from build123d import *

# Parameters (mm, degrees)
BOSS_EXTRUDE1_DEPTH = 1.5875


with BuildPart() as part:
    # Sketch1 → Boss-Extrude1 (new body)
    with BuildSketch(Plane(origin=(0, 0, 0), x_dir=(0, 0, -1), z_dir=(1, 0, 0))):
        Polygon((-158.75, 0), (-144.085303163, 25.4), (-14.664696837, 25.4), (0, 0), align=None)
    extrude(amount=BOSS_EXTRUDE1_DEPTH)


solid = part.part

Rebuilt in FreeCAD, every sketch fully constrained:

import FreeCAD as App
import Part
import Sketcher
Q = App.Units.Quantity

doc = App.newDocument("Part")
body = doc.addObject("PartDesign::Body", "Body")

# Sketch on YZ plane
sketch1 = body.newObject("Sketcher::SketchObject", "Sketch")
sketch1.AttachmentSupport = (doc.getObject("YZ_Plane"), [""])
sketch1.MapMode = "FlatFace"
sketch1.addGeometry([
    Part.LineSegment(App.Vector(25, 144, 0), App.Vector(0, 159, 0)),
    Part.LineSegment(App.Vector(0, 159, 0), App.Vector(0, 0, 0)),
    Part.LineSegment(App.Vector(0, 0, 0), App.Vector(25, 15, 0)),
    Part.LineSegment(App.Vector(25, 15, 0), App.Vector(25, 144, 0)),
], False)
sketch1.addConstraint([
    Sketcher.Constraint("Coincident", 0, 2, 1, 1),
    Sketcher.Constraint("Coincident", 1, 2, 2, 1),
    Sketcher.Constraint("Coincident", 2, 2, 3, 1),
    Sketcher.Constraint("Coincident", 3, 2, 0, 1),
    Sketcher.Constraint("Vertical", 1),
    Sketcher.Constraint("Vertical", 3),
    Sketcher.Constraint("Coincident", 1, 2, -1, 1),
    Sketcher.Constraint("Equal", 0, 2),
    Sketcher.Constraint("DistanceX", -1, 1, 2, 2, Q("1 in")),
    Sketcher.Constraint("Angle", 0, Q("150 deg")),
    Sketcher.Constraint("DistanceY", 1, 2, 1, 1, Q("6.25 in")),
])
pad1 = body.newObject("PartDesign::Pad", "Pad")
pad1.Profile = sketch1
pad1.Length = Q("0.0625 in")

doc.recompute()
